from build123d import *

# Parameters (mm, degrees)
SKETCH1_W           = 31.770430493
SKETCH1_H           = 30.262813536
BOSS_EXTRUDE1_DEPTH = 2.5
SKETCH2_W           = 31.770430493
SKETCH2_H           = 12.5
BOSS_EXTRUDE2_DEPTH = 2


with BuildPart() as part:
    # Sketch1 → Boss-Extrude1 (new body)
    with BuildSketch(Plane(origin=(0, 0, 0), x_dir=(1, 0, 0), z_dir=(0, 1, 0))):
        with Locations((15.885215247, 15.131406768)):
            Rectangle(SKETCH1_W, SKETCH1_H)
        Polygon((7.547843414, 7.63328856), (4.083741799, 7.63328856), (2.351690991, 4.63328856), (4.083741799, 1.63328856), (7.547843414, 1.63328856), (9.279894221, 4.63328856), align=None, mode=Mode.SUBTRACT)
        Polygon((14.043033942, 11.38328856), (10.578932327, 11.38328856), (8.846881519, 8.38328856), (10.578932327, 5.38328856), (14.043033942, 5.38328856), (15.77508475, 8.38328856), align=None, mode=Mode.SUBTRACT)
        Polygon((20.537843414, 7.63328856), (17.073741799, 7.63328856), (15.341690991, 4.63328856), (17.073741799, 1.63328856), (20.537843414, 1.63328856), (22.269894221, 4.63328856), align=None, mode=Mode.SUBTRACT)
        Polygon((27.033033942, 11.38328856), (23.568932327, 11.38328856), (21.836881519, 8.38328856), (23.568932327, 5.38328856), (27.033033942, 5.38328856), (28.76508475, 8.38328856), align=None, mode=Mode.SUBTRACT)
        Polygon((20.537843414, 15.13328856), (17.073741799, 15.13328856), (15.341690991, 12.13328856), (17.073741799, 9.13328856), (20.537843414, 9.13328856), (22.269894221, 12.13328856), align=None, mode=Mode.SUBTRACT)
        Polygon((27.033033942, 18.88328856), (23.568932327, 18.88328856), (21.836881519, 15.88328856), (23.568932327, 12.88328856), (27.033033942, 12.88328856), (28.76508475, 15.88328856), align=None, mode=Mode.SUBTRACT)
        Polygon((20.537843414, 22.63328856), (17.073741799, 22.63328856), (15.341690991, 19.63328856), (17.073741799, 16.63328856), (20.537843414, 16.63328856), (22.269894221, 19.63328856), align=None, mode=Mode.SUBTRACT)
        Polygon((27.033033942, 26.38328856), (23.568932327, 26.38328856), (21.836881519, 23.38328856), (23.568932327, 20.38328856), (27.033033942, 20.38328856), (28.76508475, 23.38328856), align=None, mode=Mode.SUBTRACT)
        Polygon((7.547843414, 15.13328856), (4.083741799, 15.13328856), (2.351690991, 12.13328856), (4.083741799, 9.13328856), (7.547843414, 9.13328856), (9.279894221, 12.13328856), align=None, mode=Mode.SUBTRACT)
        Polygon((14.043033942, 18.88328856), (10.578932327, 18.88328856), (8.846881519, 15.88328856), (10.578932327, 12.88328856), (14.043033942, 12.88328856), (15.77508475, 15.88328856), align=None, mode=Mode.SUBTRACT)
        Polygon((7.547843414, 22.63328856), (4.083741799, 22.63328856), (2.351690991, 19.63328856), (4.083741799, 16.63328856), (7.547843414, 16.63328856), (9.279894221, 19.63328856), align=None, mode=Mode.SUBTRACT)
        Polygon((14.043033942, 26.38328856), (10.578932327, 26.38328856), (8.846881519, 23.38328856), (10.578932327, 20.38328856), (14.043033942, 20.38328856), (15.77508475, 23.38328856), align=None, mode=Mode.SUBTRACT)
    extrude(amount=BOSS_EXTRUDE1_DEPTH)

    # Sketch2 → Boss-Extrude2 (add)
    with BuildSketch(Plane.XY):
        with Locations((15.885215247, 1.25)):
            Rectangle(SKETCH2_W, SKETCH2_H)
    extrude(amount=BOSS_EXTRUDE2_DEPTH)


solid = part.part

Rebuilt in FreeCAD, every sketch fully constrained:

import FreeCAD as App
import Part
import Sketcher

V = App.Vector
Q = App.Units.Quantity

doc = App.newDocument("Part")
body = doc.addObject("PartDesign::Body", "Body")

sketch1 = body.newObject("Sketcher::SketchObject", "Sketch")
sketch1.AttachmentSupport = (doc.getObject("XZ_Plane"), [""])
sketch1.MapMode = "FlatFace"
sketch1.addGeometry([
    Part.LineSegment(V(0, -30.3, 0), V(0, 0, 0)),
    Part.LineSegment(V(0, 0, 0), V(31.8, 0, 0)),
    Part.LineSegment(V(31.8, 0, 0), V(31.8, -30.3, 0)),
    Part.LineSegment(V(31.8, -30.3, 0), V(0, -30.3, 0)),
    Part.LineSegment(V(4.1, -7.6, 0), V(7.5, -7.6, 0)),
    Part.LineSegment(V(7.5, -7.6, 0), V(9.3, -4.6, 0)),
    Part.LineSegment(V(9.3, -4.6, 0), V(7.5, -1.6, 0)),
    Part.LineSegment(V(7.5, -1.6, 0), V(4.1, -1.6, 0)),
    Part.LineSegment(V(4.1, -1.6, 0), V(2.4, -4.6, 0)),
    Part.LineSegment(V(2.4, -4.6, 0), V(4.1, -7.6, 0)),
    Part.LineSegment(V(4.1, -15.1, 0), V(7.5, -15.1, 0)),
    Part.LineSegment(V(7.5, -15.1, 0), V(9.3, -12.1, 0)),
    Part.LineSegment(V(9.3, -12.1, 0), V(7.5, -9.1, 0)),
    Part.LineSegment(V(7.5, -9.1, 0), V(4.1, -9.1, 0)),
    Part.LineSegment(V(4.1, -9.1, 0), V(2.4, -12.1, 0)),
    Part.LineSegment(V(2.4, -12.1, 0), V(4.1, -15.1, 0)),
    Part.LineSegment(V(10.6, -11.4, 0), V(14, -11.4, 0)),
    Part.LineSegment(V(14, -11.4, 0), V(15.8, -8.4, 0)),
    Part.LineSegment(V(15.8, -8.4, 0), V(14, -5.4, 0)),
    Part.LineSegment(V(14, -5.4, 0), V(10.6, -5.4, 0)),
    Part.LineSegment(V(10.6, -5.4, 0), V(8.8, -8.4, 0)),
    Part.LineSegment(V(8.8, -8.4, 0), V(10.6, -11.4, 0)),
    Part.LineSegment(V(17.1, -7.6, 0), V(20.5, -7.6, 0)),
    Part.LineSegment(V(20.5, -7.6, 0), V(22.3, -4.6, 0)),
    Part.LineSegment(V(22.3, -4.6, 0), V(20.5, -1.6, 0)),
    Part.LineSegment(V(20.5, -1.6, 0), V(17.1, -1.6, 0)),
    Part.LineSegment(V(17.1, -1.6, 0), V(15.3, -4.6, 0)),
    Part.LineSegment(V(15.3, -4.6, 0), V(17.1, -7.6, 0)),
    Part.LineSegment(V(17.1, -15.1, 0), V(20.5, -15.1, 0)),
    Part.LineSegment(V(20.5, -15.1, 0), V(22.3, -12.1, 0)),
    Part.LineSegment(V(22.3, -12.1, 0), V(20.5, -9.1, 0)),
    Part.LineSegment(V(20.5, -9.1, 0), V(17.1, -9.1, 0)),
    Part.LineSegment(V(17.1, -9.1, 0), V(15.3, -12.1, 0)),
    Part.LineSegment(V(15.3, -12.1, 0), V(17.1, -15.1, 0)),
    Part.LineSegment(V(23.6, -11.4, 0), V(27, -11.4, 0)),
    Part.LineSegment(V(27, -11.4, 0), V(28.8, -8.4, 0)),
    Part.LineSegment(V(28.8, -8.4, 0), V(27, -5.4, 0)),
    Part.LineSegment(V(27, -5.4, 0), V(23.6, -5.4, 0)),
    Part.LineSegment(V(23.6, -5.4, 0), V(21.8, -8.4, 0)),
    Part.LineSegment(V(21.8, -8.4, 0), V(23.6, -11.4, 0)),
    Part.LineSegment(V(4.1, -22.6, 0), V(7.5, -22.6, 0)),
    Part.LineSegment(V(7.5, -22.6, 0), V(9.3, -19.6, 0)),
    Part.LineSegment(V(9.3, -19.6, 0), V(7.5, -16.6, 0)),
    Part.LineSegment(V(7.5, -16.6, 0), V(4.1, -16.6, 0)),
    Part.LineSegment(V(4.1, -16.6, 0), V(2.4, -19.6, 0)),
    Part.LineSegment(V(2.4, -19.6, 0), V(4.1, -22.6, 0)),
    Part.LineSegment(V(10.6, -18.9, 0), V(14, -18.9, 0)),
    Part.LineSegment(V(14, -18.9, 0), V(15.8, -15.9, 0)),
    Part.LineSegment(V(15.8, -15.9, 0), V(14, -12.9, 0)),
    Part.LineSegment(V(14, -12.9, 0), V(10.6, -12.9, 0)),
    Part.LineSegment(V(10.6, -12.9, 0), V(8.8, -15.9, 0)),
    Part.LineSegment(V(8.8, -15.9, 0), V(10.6, -18.9, 0)),
    Part.LineSegment(V(10.6, -26.4, 0), V(14, -26.4, 0)),
    Part.LineSegment(V(14, -26.4, 0), V(15.8, -23.4, 0)),
    Part.LineSegment(V(15.8, -23.4, 0), V(14, -20.4, 0)),
    Part.LineSegment(V(14, -20.4, 0), V(10.6, -20.4, 0)),
    Part.LineSegment(V(10.6, -20.4, 0), V(8.8, -23.4, 0)),
    Part.LineSegment(V(8.8, -23.4, 0), V(10.6, -26.4, 0)),
    Part.LineSegment(V(17.1, -22.6, 0), V(20.5, -22.6, 0)),
    Part.LineSegment(V(20.5, -22.6, 0), V(22.3, -19.6, 0)),
    Part.LineSegment(V(22.3, -19.6, 0), V(20.5, -16.6, 0)),
    Part.LineSegment(V(20.5, -16.6, 0), V(17.1, -16.6, 0)),
    Part.LineSegment(V(17.1, -16.6, 0), V(15.3, -19.6, 0)),
    Part.LineSegment(V(15.3, -19.6, 0), V(17.1, -22.6, 0)),
    Part.LineSegment(V(23.6, -18.9, 0), V(27, -18.9, 0)),
    Part.LineSegment(V(27, -18.9, 0), V(28.8, -15.9, 0)),
    Part.LineSegment(V(28.8, -15.9, 0), V(27, -12.9, 0)),
    Part.LineSegment(V(27, -12.9, 0), V(23.6, -12.9, 0)),
    Part.LineSegment(V(23.6, -12.9, 0), V(21.8, -15.9, 0)),
    Part.LineSegment(V(21.8, -15.9, 0), V(23.6, -18.9, 0)),
    Part.LineSegment(V(23.6, -26.4, 0), V(27, -26.4, 0)),
    Part.LineSegment(V(27, -26.4, 0), V(28.8, -23.4, 0)),
    Part.LineSegment(V(28.8, -23.4, 0), V(27, -20.4, 0)),
    Part.LineSegment(V(27, -20.4, 0), V(23.6, -20.4, 0)),
    Part.LineSegment(V(23.6, -20.4, 0), V(21.8, -23.4, 0)),
    Part.LineSegment(V(21.8, -23.4, 0), V(23.6, -26.4, 0)),
], False)
sketch1.addConstraint([
    Sketcher.Constraint("Coincident", 0, 2, 1, 1),
    Sketcher.Constraint("Coincident", 1, 2, 2, 1),
    Sketcher.Constraint("Coincident", 2, 2, 3, 1),
    Sketcher.Constraint("Coincident", 3, 2, 0, 1),
    Sketcher.Constraint("Coincident", 4, 2, 5, 1),
    Sketcher.Constraint("Coincident", 5, 2, 6, 1),
    Sketcher.Constraint("Coincident", 6, 2, 7, 1),
    Sketcher.Constraint("Coincident", 7, 2, 8, 1),
    Sketcher.Constraint("Coincident", 8, 2, 9, 1),
    Sketcher.Constraint("Coincident", 9, 2, 4, 1),
    Sketcher.Constraint("Coincident", 10, 2, 11, 1),
    Sketcher.Constraint("Coincident", 11, 2, 12, 1),
    Sketcher.Constraint("Coincident", 12, 2, 13, 1),
    Sketcher.Constraint("Coincident", 13, 2, 14, 1),
    Sketcher.Constraint("Coincident", 14, 2, 15, 1),
    Sketcher.Constraint("Coincident", 15, 2, 10, 1),
    Sketcher.Constraint("Coincident", 16, 2, 17, 1),
    Sketcher.Constraint("Coincident", 17, 2, 18, 1),
    Sketcher.Constraint("Coincident", 18, 2, 19, 1),
    Sketcher.Constraint("Coincident", 19, 2, 20, 1),
    Sketcher.Constraint("Coincident", 20, 2, 21, 1),
    Sketcher.Constraint("Coincident", 21, 2, 16, 1),
    Sketcher.Constraint("Coincident", 22, 2, 23, 1),
    Sketcher.Constraint("Coincident", 23, 2, 24, 1),
    Sketcher.Constraint("Coincident", 24, 2, 25, 1),
    Sketcher.Constraint("Coincident", 25, 2, 26, 1),
    Sketcher.Constraint("Coincident", 26, 2, 27, 1),
    Sketcher.Constraint("Coincident", 27, 2, 22, 1),
    Sketcher.Constraint("Coincident", 28, 2, 29, 1),
    Sketcher.Constraint("Coincident", 29, 2, 30, 1),
    Sketcher.Constraint("Coincident", 30, 2, 31, 1),
    Sketcher.Constraint("Coincident", 31, 2, 32, 1),
    Sketcher.Constraint("Coincident", 32, 2, 33, 1),
    Sketcher.Constraint("Coincident", 33, 2, 28, 1),
    Sketcher.Constraint("Coincident", 34, 2, 35, 1),
    Sketcher.Constraint("Coincident", 35, 2, 36, 1),
    Sketcher.Constraint("Coincident", 36, 2, 37, 1),
    Sketcher.Constraint("Coincident", 37, 2, 38, 1),
    Sketcher.Constraint("Coincident", 38, 2, 39, 1),
    Sketcher.Constraint("Coincident", 39, 2, 34, 1),
    Sketcher.Constraint("Coincident", 40, 2, 41, 1),
    Sketcher.Constraint("Coincident", 41, 2, 42, 1),
    Sketcher.Constraint("Coincident", 42, 2, 43, 1),
    Sketcher.Constraint("Coincident", 43, 2, 44, 1),
    Sketcher.Constraint("Coincident", 44, 2, 45, 1),
    Sketcher.Constraint("Coincident", 45, 2, 40, 1),
    Sketcher.Constraint("Coincident", 46, 2, 47, 1),
    Sketcher.Constraint("Coincident", 47, 2, 48, 1),
    Sketcher.Constraint("Coincident", 48, 2, 49, 1),
    Sketcher.Constraint("Coincident", 49, 2, 50, 1),
    Sketcher.Constraint("Coincident", 50, 2, 51, 1),
    Sketcher.Constraint("Coincident", 51, 2, 46, 1),
    Sketcher.Constraint("Coincident", 52, 2, 53, 1),
    Sketcher.Constraint("Coincident", 53, 2, 54, 1),
    Sketcher.Constraint("Coincident", 54, 2, 55, 1),
    Sketcher.Constraint("Coincident", 55, 2, 56, 1),
    Sketcher.Constraint("Coincident", 56, 2, 57, 1),
    Sketcher.Constraint("Coincident", 57, 2, 52, 1),
    Sketcher.Constraint("Coincident", 58, 2, 59, 1),
    Sketcher.Constraint("Coincident", 59, 2, 60, 1),
    Sketcher.Constraint("Coincident", 60, 2, 61, 1),
    Sketcher.Constraint("Coincident", 61, 2, 62, 1),
    Sketcher.Constraint("Coincident", 62, 2, 63, 1),
    Sketcher.Constraint("Coincident", 63, 2, 58, 1),
    Sketcher.Constraint("Coincident", 64, 2, 65, 1),
    Sketcher.Constraint("Coincident", 65, 2, 66, 1),
    Sketcher.Constraint("Coincident", 66, 2, 67, 1),
    Sketcher.Constraint("Coincident", 67, 2, 68, 1),
    Sketcher.Constraint("Coincident", 68, 2, 69, 1),
    Sketcher.Constraint("Coincident", 69, 2, 64, 1),
    Sketcher.Constraint("Coincident", 70, 2, 71, 1),
    Sketcher.Constraint("Coincident", 71, 2, 72, 1),
    Sketcher.Constraint("Coincident", 72, 2, 73, 1),
    Sketcher.Constraint("Coincident", 73, 2, 74, 1),
    Sketcher.Constraint("Coincident", 74, 2, 75, 1),
    Sketcher.Constraint("Coincident", 75, 2, 70, 1),
    Sketcher.Constraint("Vertical", 0),
    Sketcher.Constraint("Horizontal", 1),
    Sketcher.Constraint("Vertical", 2),
    Sketcher.Constraint("Horizontal", 3),
    Sketcher.Constraint("Horizontal", 4),
    Sketcher.Constraint("Horizontal", 7),
    Sketcher.Constraint("Horizontal", 10),
    Sketcher.Constraint("Horizontal", 13),
    Sketcher.Constraint("Horizontal", 16),
    Sketcher.Constraint("Horizontal", 19),
    Sketcher.Constraint("Horizontal", 22),
    Sketcher.Constraint("Horizontal", 25),
    Sketcher.Constraint("Horizontal", 28),
    Sketcher.Constraint("Horizontal", 31),
    Sketcher.Constraint("Horizontal", 34),
    Sketcher.Constraint("Horizontal", 37),
    Sketcher.Constraint("Horizontal", 40),
    Sketcher.Constraint("Horizontal", 43),
    Sketcher.Constraint("Horizontal", 46),
    Sketcher.Constraint("Horizontal", 49),
    Sketcher.Constraint("Horizontal", 52),
    Sketcher.Constraint("Horizontal", 55),
    Sketcher.Constraint("Horizontal", 58),
    Sketcher.Constraint("Horizontal", 61),
    Sketcher.Constraint("Horizontal", 64),
    Sketcher.Constraint("Horizontal", 67),
    Sketcher.Constraint("Horizontal", 70),
    Sketcher.Constraint("Horizontal", 73),
    Sketcher.Constraint("Coincident", 0, 2, -1, 1),
    Sketcher.Constraint("Parallel", 5, 8),
    Sketcher.Constraint("Parallel", 6, 9),
    Sketcher.Constraint("Parallel", 8, 11),
    Sketcher.Constraint("Parallel", 9, 12),
    Sketcher.Constraint("Parallel", 11, 14),
    Sketcher.Constraint("Parallel", 12, 15),
    Sketcher.Constraint("Parallel", 14, 17),
    Sketcher.Constraint("Parallel", 15, 18),
    Sketcher.Constraint("Parallel", 17, 20),
    Sketcher.Constraint("Parallel", 18, 21),
    Sketcher.Constraint("Parallel", 20, 23),
    Sketcher.Constraint("Parallel", 21, 24),
    Sketcher.Constraint("Parallel", 23, 26),
    Sketcher.Constraint("Parallel", 24, 27),
    Sketcher.Constraint("Parallel", 26, 29),
    Sketcher.Constraint("Parallel", 27, 30),
    Sketcher.Constraint("Parallel", 29, 32),
    Sketcher.Constraint("Parallel", 30, 33),
    Sketcher.Constraint("Parallel", 32, 35),
    Sketcher.Constraint("Parallel", 33, 36),
    Sketcher.Constraint("Parallel", 35, 38),
    Sketcher.Constraint("Parallel", 36, 39),
    Sketcher.Constraint("Parallel", 38, 41),
    Sketcher.Constraint("Parallel", 39, 42),
    Sketcher.Constraint("Parallel", 41, 44),
    Sketcher.Constraint("Parallel", 42, 45),
    Sketcher.Constraint("Parallel", 44, 47),
    Sketcher.Constraint("Parallel", 45, 48),
    Sketcher.Constraint("Parallel", 47, 50),
    Sketcher.Constraint("Parallel", 48, 51),
    Sketcher.Constraint("Parallel", 50, 53),
    Sketcher.Constraint("Parallel", 51, 54),
    Sketcher.Constraint("Parallel", 53, 56),
    Sketcher.Constraint("Parallel", 54, 57),
    Sketcher.Constraint("Parallel", 56, 59),
    Sketcher.Constraint("Parallel", 57, 60),
    Sketcher.Constraint("Parallel", 59, 62),
    Sketcher.Constraint("Parallel", 60, 63),
    Sketcher.Constraint("Parallel", 62, 65),
    Sketcher.Constraint("Parallel", 63, 66),
    Sketcher.Constraint("Parallel", 65, 68),
    Sketcher.Constraint("Parallel", 66, 69),
    Sketcher.Constraint("Parallel", 68, 71),
    Sketcher.Constraint("Parallel", 69, 72),
    Sketcher.Constraint("Parallel", 71, 74),
    Sketcher.Constraint("Parallel", 72, 75),
    Sketcher.Constraint("Horizontal", 5, 2, 8, 2),
    Sketcher.Constraint("Horizontal", 11, 2, 14, 2),
    Sketcher.Constraint("Horizontal", 17, 2, 20, 2),
    Sketcher.Constraint("Horizontal", 9, 2, 22, 2),
    Sketcher.Constraint("Horizontal", 8, 2, 23, 2),
    Sketcher.Constraint("Horizontal", 7, 2, 24, 2),
    Sketcher.Constraint("Horizontal", 23, 2, 26, 2),
    Sketcher.Constraint("Horizontal", 15, 2, 28, 2),
    Sketcher.Constraint("Horizontal", 14, 2, 29, 2),
    Sketcher.Constraint("Horizontal", 13, 2, 30, 2),
    Sketcher.Constraint("Horizontal", 29, 2, 32, 2),
    Sketcher.Constraint("Horizontal", 21, 2, 34, 2),
    Sketcher.Constraint("Horizontal", 20, 2, 35, 2),
    Sketcher.Constraint("Horizontal", 19, 2, 36, 2),
    Sketcher.Constraint("Horizontal", 35, 2, 38, 2),
    Sketcher.Constraint("Horizontal", 41, 2, 44, 2),
    Sketcher.Constraint("Horizontal", 47, 2, 50, 2),
    Sketcher.Constraint("Horizontal", 53, 2, 56, 2),
    Sketcher.Constraint("Horizontal", 45, 2, 58, 2),
    Sketcher.Constraint("Horizontal", 44, 2, 59, 2),
    Sketcher.Constraint("Horizontal", 43, 2, 60, 2),
    Sketcher.Constraint("Horizontal", 59, 2, 62, 2),
    Sketcher.Constraint("Horizontal", 51, 2, 64, 2),
    Sketcher.Constraint("Horizontal", 50, 2, 65, 2),
    Sketcher.Constraint("Horizontal", 49, 2, 66, 2),
    Sketcher.Constraint("Horizontal", 65, 2, 68, 2),
    Sketcher.Constraint("Horizontal", 57, 2, 70, 2),
    Sketcher.Constraint("Horizontal", 56, 2, 71, 2),
    Sketcher.Constraint("Horizontal", 55, 2, 72, 2),
    Sketcher.Constraint("Horizontal", 71, 2, 74, 2),
    Sketcher.Constraint("Vertical", 4, 2, 6, 2),
    Sketcher.Constraint("Vertical", 7, 2, 9, 2),
    Sketcher.Constraint("Vertical", 6, 2, 10, 2),
    Sketcher.Constraint("Vertical", 5, 2, 11, 2),
    Sketcher.Constraint("Vertical", 10, 2, 12, 2),
    Sketcher.Constraint("Vertical", 9, 2, 13, 2),
    Sketcher.Constraint("Vertical", 16, 2, 18, 2),
    Sketcher.Constraint("Vertical", 24, 2, 28, 2),
    Sketcher.Constraint("Vertical", 27, 2, 31, 2),
    Sketcher.Constraint("Vertical", 12, 2, 40, 2),
    Sketcher.Constraint("Vertical", 11, 2, 41, 2),
    Sketcher.Constraint("Vertical", 40, 2, 42, 2),
    Sketcher.Constraint("Vertical", 15, 2, 43, 2),
    Sketcher.Constraint("Vertical", 18, 2, 46, 2),
    Sketcher.Constraint("Vertical", 17, 2, 47, 2),
    Sketcher.Constraint("Vertical", 46, 2, 48, 2),
    Sketcher.Constraint("Vertical", 21, 2, 49, 2),
    Sketcher.Constraint("Vertical", 48, 2, 52, 2),
    Sketcher.Constraint("Vertical", 47, 2, 53, 2),
    Sketcher.Constraint("Vertical", 52, 2, 54, 2),
    Sketcher.Constraint("Vertical", 51, 2, 55, 2),
    Sketcher.Constraint("Vertical", 30, 2, 58, 2),
    Sketcher.Constraint("Vertical", 33, 2, 61, 2),
    Sketcher.Constraint("Vertical", 36, 2, 64, 2),
    Sketcher.Constraint("Vertical", 39, 2, 67, 2),
    Sketcher.Constraint("Vertical", 66, 2, 70, 2),
    Sketcher.Constraint("Vertical", 69, 2, 73, 2),
    Sketcher.Constraint("Equal", 13, 16),
    Sketcher.Constraint("Equal", 19, 22),
    Sketcher.Constraint("Equal", 31, 34),
    Sketcher.Constraint("Equal", 15, 17),
    Sketcher.Constraint("Angle", 5, Q("60 deg")),
    Sketcher.Constraint("DistanceX", 4, 1, 4, 2, Q("3.464102 mm")),
    Sketcher.Constraint("Distance", 5, Q("3.464102 mm")),
    Sketcher.Constraint("DistanceX", 1, 1, 1, 2, Q("31.77043 mm")),
    Sketcher.Constraint("DistanceY", 0, 1, 0, 2, Q("30.262814 mm")),
    Sketcher.Constraint("DistanceY", 4, 2, -1, 1, Q("7.633289 mm")),
    Sketcher.Constraint("DistanceX", -1, 1, 7, 2, Q("4.083742 mm")),
    Sketcher.Constraint("DistanceY", 10, 2, -1, 1, Q("15.133289 mm")),
    Sketcher.Constraint("DistanceY", 16, 2, -1, 1, Q("11.383289 mm")),
    Sketcher.Constraint("DistanceX", -1, 1, 20, 2, Q("8.846882 mm")),
    Sketcher.Constraint("DistanceX", -1, 1, 25, 2, Q("17.073742 mm")),
    Sketcher.Constraint("DistanceX", -1, 1, 38, 2, Q("21.836882 mm")),
    Sketcher.Constraint("DistanceY", 40, 2, -1, 1, Q("22.633289 mm")),
    Sketcher.Constraint("DistanceY", 46, 2, -1, 1, Q("18.883289 mm")),
    Sketcher.Constraint("DistanceY", 52, 2, -1, 1, Q("26.383289 mm")),
])
pad1 = body.newObject("PartDesign::Pad", "Pad")
pad1.Profile = sketch1
pad1.Length = 2.5
pad1.Reversed = True

sketch2 = body.newObject("Sketcher::SketchObject", "Sketch001")
sketch2.AttachmentSupport = (doc.getObject("XY_Plane"), [""])
sketch2.MapMode = "FlatFace"
sketch2.addGeometry([
    Part.LineSegment(V(0, 8, 0), V(0, -5, 0)),
    Part.LineSegment(V(0, -5, 0), V(32, -5, 0)),
    Part.LineSegment(V(32, -5, 0), V(32, 8, 0)),
    Part.LineSegment(V(32, 8, 0), V(0, 8, 0)),
], False)
sketch2.addConstraint([
    Sketcher.Constraint("Coincident", 0, 2, 1, 1),
    Sketcher.Constraint("Coincident", 1, 2, 2, 1),
    Sketcher.Constraint("Coincident", 2, 2, 3, 1),
    Sketcher.Constraint("Coincident", 3, 2, 0, 1),
    Sketcher.Constraint("Vertical", 0),
    Sketcher.Constraint("Horizontal", 1),
    Sketcher.Constraint("Vertical", 2),
    Sketcher.Constraint("Horizontal", 3),
    Sketcher.Constraint("PointOnObject", 0, 2, -2),
    Sketcher.Constraint("DistanceY", 0, 2, 0, 1, Q("12.5 mm")),
    Sketcher.Constraint("DistanceY", 0, 2, -1, 1, Q("5 mm")),
    Sketcher.Constraint("DistanceX", 1, 1, 1, 2, Q("31.77043 mm")),
])
pad2 = body.newObject("PartDesign::Pad", "Pad001")
pad2.Profile = sketch2
pad2.Length = 2

doc.recompute()
